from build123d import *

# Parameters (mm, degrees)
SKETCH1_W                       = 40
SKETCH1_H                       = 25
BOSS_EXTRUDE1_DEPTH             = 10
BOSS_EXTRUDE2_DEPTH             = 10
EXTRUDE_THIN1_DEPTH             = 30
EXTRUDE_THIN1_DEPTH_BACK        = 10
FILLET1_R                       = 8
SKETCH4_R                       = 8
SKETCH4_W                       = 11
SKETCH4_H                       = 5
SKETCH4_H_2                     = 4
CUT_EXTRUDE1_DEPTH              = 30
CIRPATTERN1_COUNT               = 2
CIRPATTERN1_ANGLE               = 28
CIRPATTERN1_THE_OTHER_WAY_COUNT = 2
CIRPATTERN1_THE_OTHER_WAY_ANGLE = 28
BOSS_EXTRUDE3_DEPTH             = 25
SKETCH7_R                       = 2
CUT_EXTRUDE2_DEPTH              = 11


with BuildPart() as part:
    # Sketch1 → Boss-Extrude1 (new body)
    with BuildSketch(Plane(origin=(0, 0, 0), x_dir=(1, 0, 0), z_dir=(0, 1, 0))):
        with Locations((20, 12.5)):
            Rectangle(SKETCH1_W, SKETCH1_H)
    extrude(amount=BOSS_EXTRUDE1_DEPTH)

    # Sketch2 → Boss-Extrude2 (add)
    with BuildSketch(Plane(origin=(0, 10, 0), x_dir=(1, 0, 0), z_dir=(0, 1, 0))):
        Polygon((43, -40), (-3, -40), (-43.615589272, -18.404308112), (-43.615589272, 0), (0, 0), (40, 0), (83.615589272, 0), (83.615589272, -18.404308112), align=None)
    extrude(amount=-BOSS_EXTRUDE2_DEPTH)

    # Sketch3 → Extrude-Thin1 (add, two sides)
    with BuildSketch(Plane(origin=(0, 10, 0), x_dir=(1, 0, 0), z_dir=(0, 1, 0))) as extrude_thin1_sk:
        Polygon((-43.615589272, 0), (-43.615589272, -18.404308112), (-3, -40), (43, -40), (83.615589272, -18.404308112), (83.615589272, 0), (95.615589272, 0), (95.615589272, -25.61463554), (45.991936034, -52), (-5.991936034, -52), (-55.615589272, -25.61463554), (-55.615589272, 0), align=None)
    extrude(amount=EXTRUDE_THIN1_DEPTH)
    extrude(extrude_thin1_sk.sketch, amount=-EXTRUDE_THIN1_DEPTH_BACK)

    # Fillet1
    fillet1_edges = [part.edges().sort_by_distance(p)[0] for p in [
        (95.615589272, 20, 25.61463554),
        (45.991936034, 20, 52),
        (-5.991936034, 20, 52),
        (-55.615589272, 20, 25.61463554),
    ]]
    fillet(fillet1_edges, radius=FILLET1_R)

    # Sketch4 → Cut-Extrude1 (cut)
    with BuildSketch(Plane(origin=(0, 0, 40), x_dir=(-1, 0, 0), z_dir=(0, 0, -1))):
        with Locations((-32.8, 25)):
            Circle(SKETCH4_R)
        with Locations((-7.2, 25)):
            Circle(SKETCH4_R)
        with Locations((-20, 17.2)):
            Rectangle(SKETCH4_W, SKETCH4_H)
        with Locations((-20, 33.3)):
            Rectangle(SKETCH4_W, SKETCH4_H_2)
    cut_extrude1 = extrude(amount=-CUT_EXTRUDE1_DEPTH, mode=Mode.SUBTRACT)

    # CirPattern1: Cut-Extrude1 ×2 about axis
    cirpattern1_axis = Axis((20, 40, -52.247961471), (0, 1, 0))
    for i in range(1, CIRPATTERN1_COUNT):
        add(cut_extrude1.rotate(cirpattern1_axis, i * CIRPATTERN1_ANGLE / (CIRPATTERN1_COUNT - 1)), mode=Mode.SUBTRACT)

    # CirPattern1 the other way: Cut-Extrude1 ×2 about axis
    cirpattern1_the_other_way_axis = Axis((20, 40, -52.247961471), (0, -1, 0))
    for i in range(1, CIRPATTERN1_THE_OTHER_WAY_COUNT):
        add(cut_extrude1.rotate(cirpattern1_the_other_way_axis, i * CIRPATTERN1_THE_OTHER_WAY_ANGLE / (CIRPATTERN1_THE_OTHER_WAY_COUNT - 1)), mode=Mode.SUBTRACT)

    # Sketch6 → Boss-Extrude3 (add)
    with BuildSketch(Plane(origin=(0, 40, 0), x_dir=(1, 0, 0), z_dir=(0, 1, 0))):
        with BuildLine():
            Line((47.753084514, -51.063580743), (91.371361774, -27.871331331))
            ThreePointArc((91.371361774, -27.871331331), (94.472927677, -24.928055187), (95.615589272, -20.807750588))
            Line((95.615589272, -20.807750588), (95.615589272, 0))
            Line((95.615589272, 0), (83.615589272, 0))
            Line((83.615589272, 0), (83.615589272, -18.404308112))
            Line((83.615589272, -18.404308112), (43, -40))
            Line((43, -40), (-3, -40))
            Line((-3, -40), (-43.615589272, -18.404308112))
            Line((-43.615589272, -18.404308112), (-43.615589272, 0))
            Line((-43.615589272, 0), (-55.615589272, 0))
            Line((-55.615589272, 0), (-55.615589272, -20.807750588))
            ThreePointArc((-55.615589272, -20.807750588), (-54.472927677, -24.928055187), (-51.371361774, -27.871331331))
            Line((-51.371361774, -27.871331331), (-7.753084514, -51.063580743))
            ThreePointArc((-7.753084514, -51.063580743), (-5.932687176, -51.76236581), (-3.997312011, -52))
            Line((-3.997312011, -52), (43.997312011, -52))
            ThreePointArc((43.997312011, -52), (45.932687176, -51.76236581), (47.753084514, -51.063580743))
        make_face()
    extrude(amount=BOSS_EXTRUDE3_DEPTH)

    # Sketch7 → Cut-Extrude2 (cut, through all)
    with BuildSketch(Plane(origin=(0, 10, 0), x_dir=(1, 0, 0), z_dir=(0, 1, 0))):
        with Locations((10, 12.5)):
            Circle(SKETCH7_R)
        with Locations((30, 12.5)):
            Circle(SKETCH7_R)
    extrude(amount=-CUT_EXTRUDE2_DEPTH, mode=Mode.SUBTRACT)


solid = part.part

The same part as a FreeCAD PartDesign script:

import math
import FreeCAD as App
import Part
import Sketcher
Q = App.Units.Quantity


def edges_at(feature, points):
    """Names of the edges that pass closest to the given points."""
    edges = feature.Shape.Edges
    near = lambda p: min(range(len(edges)), key=lambda i: edges[i].distToShape(Part.Vertex(*p))[0])
    return sorted({f"Edge{near(p) + 1}" for p in points})


def add_polygon(sketch, points):
    """Adds a closed chain of lines whose ends are joined by coincident constraints."""
    first, n = sketch.GeometryCount, len(points)
    for a, b in zip(points, points[1:] + points[:1]):
        sketch.addGeometry(Part.LineSegment(App.Vector(*a, 0), App.Vector(*b, 0)), False)
    for i in range(n):
        sketch.addConstraint(Sketcher.Constraint("Coincident", first + i, 2, first + (i + 1) % n, 1))

doc = App.newDocument("Part")
body = doc.addObject("PartDesign::Body", "Body")

# Sketch on XZ plane
sketch1 = body.newObject("Sketcher::SketchObject", "Sketch")
sketch1.AttachmentSupport = (doc.getObject("XZ_Plane"), [""])
sketch1.MapMode = "FlatFace"
add_polygon(sketch1, [(0, -25), (0, 0), (40, 0), (40, -25)])  # lines 0-3
sketch1.addConstraint([
    Sketcher.Constraint("Vertical", 0),
    Sketcher.Constraint("Horizontal", 1),
    Sketcher.Constraint("Vertical", 2),
    Sketcher.Constraint("Horizontal", 3),
    Sketcher.Constraint("Coincident", 0, 2, -1, 1),
    Sketcher.Constraint("DistanceX", 1, 1, 1, 2, 40.0),
    Sketcher.Constraint("DistanceY", 0, 1, 0, 2, 25.0),
])
pad1 = body.newObject("PartDesign::Pad", "Pad")
pad1.Profile = sketch1
pad1.Length = 10
pad1.Reversed = True

# Sketch on XZ plane
sketch2 = body.newObject("Sketcher::SketchObject", "Sketch001")
sketch2.AttachmentSupport = (doc.getObject("XZ_Plane"), [""])
sketch2.MapMode = "FlatFace"
sketch2.AttachmentOffset = App.Placement(App.Vector(0, 0, -10), App.Rotation())
add_polygon(sketch2, [(-3, 40), (43, 40), (84, 18), (84, 0), (-44, 0), (-44, 18)])  # lines 0-5
sketch2.addConstraint([
    Sketcher.Constraint("Horizontal", 0),
    Sketcher.Constraint("Vertical", 2),
    Sketcher.Constraint("Horizontal", 3),
    Sketcher.Constraint("Vertical", 4),
    Sketcher.Constraint("PointOnObject", 2, 2, -1),
    Sketcher.Constraint("Horizontal", 1, 2, 4, 2),
    Sketcher.Constraint("Equal", 1, 5),
    Sketcher.Constraint("DistanceX", 0, 1, 0, 2, 46.0),
    Sketcher.Constraint("Angle", 1, Q("-28 deg")),
    Sketcher.Constraint("Distance", 1, 46.0),
    Sketcher.Constraint("DistanceX", -1, 1, 0, 2, 43.0),
    Sketcher.Constraint("DistanceY", -1, 1, 0, 2, 40.0),
])
pad2 = body.newObject("PartDesign::Pad", "Pad001")
pad2.Profile = sketch2
pad2.Length = 10

# Sketch on XZ plane
sketch3 = body.newObject("Sketcher::SketchObject", "Sketch002")
sketch3.AttachmentSupport = (doc.getObject("XZ_Plane"), [""])
sketch3.MapMode = "FlatFace"
sketch3.AttachmentOffset = App.Placement(App.Vector(0, 0, -10), App.Rotation())
add_polygon(sketch3, [(-44, 18), (-44, 0), (-56, 0), (-56, 26), (-6, 52), (46, 52), (96, 26), (96, 0), (84, 0), (84, 18), (43, 40), (-3, 40)])  # lines 0-11
sketch3.addConstraint([
    Sketcher.Constraint("Vertical", 0),
    Sketcher.Constraint("Horizontal", 1),
    Sketcher.Constraint("Vertical", 2),
    Sketcher.Constraint("Horizontal", 4),
    Sketcher.Constraint("Vertical", 6),
    Sketcher.Constraint("Horizontal", 7),
    Sketcher.Constraint("Vertical", 8),
    Sketcher.Constraint("Horizontal", 10),
    Sketcher.Constraint("PointOnObject", 0, 2, -1),
    Sketcher.Constraint("PointOnObject", 6, 2, -1),
    Sketcher.Constraint("Parallel", 5, 9),
    Sketcher.Constraint("Parallel", 3, 11),
    Sketcher.Constraint("Horizontal", 2, 2, 5, 2),
    Sketcher.Constraint("Horizontal", 8, 2, 11, 2),
    Sketcher.Constraint("Equal", 1, 7),
    Sketcher.Constraint("Equal", 3, 5),
    Sketcher.Constraint("DistanceX", 1, 2, 1, 1, 12.0),
    Sketcher.Constraint("DistanceX", 10, 2, 10, 1, 46.0),
    Sketcher.Constraint("Angle", 3, Q("28 deg")),
    Sketcher.Constraint("Distance", 9, 46.0),
    Sketcher.Constraint("DistanceY", -1, 1, 3, 2, 52.0),
    Sketcher.Constraint("DistanceX", -1, 1, 9, 2, 43.0),
    Sketcher.Constraint("DistanceY", -1, 1, 9, 2, 40.0),
    Sketcher.Constraint("DistanceX", 4, 1, 4, 2, 51.983872),
])
pad3 = body.newObject("PartDesign::Pad", "Pad002")
pad3.Profile = sketch3
pad3.Type = "TwoLengths"
pad3.Length = 30
pad3.Length2 = 10
pad3.Reversed = True
doc.recompute()

fillet = body.newObject("PartDesign::Fillet", "Fillet")
fillet.Base = (pad3, edges_at(pad3, [
    (95.616, 20, 25.615),
    (45.992, 20, 52),
    (-5.992, 20, 52),
    (-55.616, 20, 25.615),
]))
fillet.Radius = 8

# Sketch on XY plane
sketch4 = body.newObject("Sketcher::SketchObject", "Sketch003")
sketch4.AttachmentSupport = (doc.getObject("XY_Plane"), [""])
sketch4.MapMode = "FlatFace"
sketch4.AttachmentOffset = App.Placement(App.Vector(0, 0, 40), App.Rotation())
sketch4.addGeometry(Part.Circle(App.Vector(32.8, 25, 0), App.Vector(0, 0, 1), 8), False)  # 0
sketch4.addGeometry(Part.Circle(App.Vector(7.2, 25, 0), App.Vector(0, 0, 1), 8), False)  # 1
add_polygon(sketch4, [(25.5, 19.7), (25.5, 14.7), (14.5, 14.7), (14.5, 19.7)])  # lines 2-5
add_polygon(sketch4, [(25.5, 35.3), (25.5, 31.3), (14.5, 31.3), (14.5, 35.3)])  # lines 6-9
sketch4.addConstraint([
    Sketcher.Constraint("Vertical", 2),
    Sketcher.Constraint("Horizontal", 3),
    Sketcher.Constraint("Vertical", 4),
    Sketcher.Constraint("Horizontal", 5),
    Sketcher.Constraint("Vertical", 6),
    Sketcher.Constraint("Horizontal", 7),
    Sketcher.Constraint("Vertical", 8),
    Sketcher.Constraint("Horizontal", 9),
    Sketcher.Constraint("Equal", 0, 1),
    Sketcher.Constraint("Horizontal", 0, 3, 1, 3),
    Sketcher.Constraint("Vertical", 5, 2, 6, 2),
    Sketcher.Constraint("Vertical", 4, 2, 7, 2),
    Sketcher.Constraint("Diameter", 0, 16.0),
    Sketcher.Constraint("DistanceX", 3, 2, 3, 1, 11.0),
    Sketcher.Constraint("DistanceY", 2, 2, 2, 1, 5.0),
    Sketcher.Constraint("DistanceY", 6, 2, 6, 1, 4.0),
    Sketcher.Constraint("DistanceY", -1, 1, 0, 3, 25.0),
    Sketcher.Constraint("DistanceX", -1, 1, 0, 3, 32.8),
    Sketcher.Constraint("DistanceX", -1, 1, 1, 3, 7.2),
    Sketcher.Constraint("DistanceX", -1, 1, 2, 2, 25.5),
    Sketcher.Constraint("DistanceY", -1, 1, 2, 2, 14.7),
    Sketcher.Constraint("DistanceY", -1, 1, 6, 2, 31.3),
])
pocket1 = body.newObject("PartDesign::Pocket", "Pocket")
pocket1.Profile = sketch4
pocket1.Length = 30
pocket1.Reversed = True
doc.recompute()

datumline = body.newObject("PartDesign::Line", "DatumLine")
datumline.Placement = App.Placement(App.Vector(20, 0, -52.247961), App.Rotation(App.Vector(0, 0, 1), App.Vector(0, 1, 0)))
polarpattern = body.newObject("PartDesign::PolarPattern", "PolarPattern")
polarpattern.Originals = [pocket1]
polarpattern.Axis = (datumline, [""])
polarpattern.Angle = 28
polarpattern.Occurrences = 2
body.Tip = polarpattern
doc.recompute()

datumline2 = body.newObject("PartDesign::Line", "DatumLine001")
datumline2.Placement = App.Placement(App.Vector(20, 0, -52.247961), App.Rotation(App.Vector(0, 0, 1), App.Vector(0, -1, 0)))
polarpattern2 = body.newObject("PartDesign::PolarPattern", "PolarPattern001")
polarpattern2.Originals = [pocket1]
polarpattern2.Axis = (datumline2, [""])
polarpattern2.Angle = 28
polarpattern2.Occurrences = 2
body.Tip = polarpattern2

# Sketch on XZ plane
sketch5 = body.newObject("Sketcher::SketchObject", "Sketch004")
sketch5.AttachmentSupport = (doc.getObject("XZ_Plane"), [""])
sketch5.MapMode = "FlatFace"
sketch5.AttachmentOffset = App.Placement(App.Vector(0, 0, -40), App.Rotation())
sketch5.addGeometry([
    Part.LineSegment(App.Vector(47.8, 51.1, 0), App.Vector(91.4, 27.9, 0)),  # 0
    Part.ArcOfCircle(Part.Circle(App.Vector(87.6, 20.8, 0), App.Vector(0, 0, 1), 8), math.radians(0), math.radians(62)),  # 1
    Part.LineSegment(App.Vector(95.6, 20.8, 0), App.Vector(95.6, 0, 0)),  # 2
    Part.LineSegment(App.Vector(95.6, 0, 0), App.Vector(83.6, 0, 0)),  # 3
    Part.LineSegment(App.Vector(83.6, 0, 0), App.Vector(83.6, 18.4, 0)),  # 4
    Part.LineSegment(App.Vector(83.6, 18.4, 0), App.Vector(43, 40, 0)),  # 5
    Part.LineSegment(App.Vector(43, 40, 0), App.Vector(-3, 40, 0)),  # 6
    Part.LineSegment(App.Vector(-3, 40, 0), App.Vector(-43.6, 18.4, 0)),  # 7
    Part.LineSegment(App.Vector(-43.6, 18.4, 0), App.Vector(-43.6, 0, 0)),  # 8
    Part.LineSegment(App.Vector(-43.6, 0, 0), App.Vector(-55.6, 0, 0)),  # 9
    Part.LineSegment(App.Vector(-55.6, 0, 0), App.Vector(-55.6, 20.8, 0)),  # 10
    Part.ArcOfCircle(Part.Circle(App.Vector(-47.6, 20.8, 0), App.Vector(0, 0, 1), 8), math.radians(118), math.radians(180)),  # 11
    Part.LineSegment(App.Vector(-51.4, 27.9, 0), App.Vector(-7.8, 51.1, 0)),  # 12
    Part.ArcOfCircle(Part.Circle(App.Vector(-4, 44, 0), App.Vector(0, 0, 1), 8), math.radians(90), math.radians(118)),  # 13
    Part.LineSegment(App.Vector(-4, 52, 0), App.Vector(44, 52, 0)),  # 14
    Part.ArcOfCircle(Part.Circle(App.Vector(44, 44, 0), App.Vector(0, 0, 1), 8), math.radians(62), math.radians(90)),  # 15
], False)
sketch5.addConstraint([
    Sketcher.Constraint("Tangent", 0, 2, 1, 2),
    Sketcher.Constraint("Tangent", 1, 1, 2, 1),
    Sketcher.Constraint("Coincident", 2, 2, 3, 1),
    Sketcher.Constraint("Coincident", 3, 2, 4, 1),
    Sketcher.Constraint("Coincident", 4, 2, 5, 1),
    Sketcher.Constraint("Coincident", 5, 2, 6, 1),
    Sketcher.Constraint("Coincident", 6, 2, 7, 1),
    Sketcher.Constraint("Coincident", 7, 2, 8, 1),
    Sketcher.Constraint("Coincident", 8, 2, 9, 1),
    Sketcher.Constraint("Coincident", 9, 2, 10, 1),
    Sketcher.Constraint("Tangent", 10, 2, 11, 2),
    Sketcher.Constraint("Tangent", 11, 1, 12, 1),
    Sketcher.Constraint("Tangent", 12, 2, 13, 2),
    Sketcher.Constraint("Tangent", 13, 1, 14, 1),
    Sketcher.Constraint("Tangent", 14, 2, 15, 2),
    Sketcher.Constraint("Tangent", 15, 1, 0, 1),
    Sketcher.Constraint("Vertical", 2),
    Sketcher.Constraint("Horizontal", 3),
    Sketcher.Constraint("Vertical", 4),
    Sketcher.Constraint("Horizontal", 6),
    Sketcher.Constraint("Vertical", 8),
    Sketcher.Constraint("Horizontal", 9),
    Sketcher.Constraint("Vertical", 10),
    Sketcher.Constraint("Horizontal", 14),
    Sketcher.Constraint("Equal", 1, 11),
    Sketcher.Constraint("Equal", 11, 13),
    Sketcher.Constraint("Equal", 13, 15),
    Sketcher.Constraint("PointOnObject", 2, 2, -1),
    Sketcher.Constraint("PointOnObject", 8, 2, -1),
    Sketcher.Constraint("Parallel", 0, 5),
    Sketcher.Constraint("Parallel", 7, 12),
    Sketcher.Constraint("Horizontal", 1, 3, 11, 3),
    Sketcher.Constraint("Horizontal", 4, 2, 7, 2),
    Sketcher.Constraint("Horizontal", 0, 2, 11, 1),
    Sketcher.Constraint("Equal", 3, 9),
    Sketcher.Constraint("Radius", 1, 8.0),
    Sketcher.Constraint("DistanceX", 3, 2, 3, 1, 12.0),
    Sketcher.Constraint("DistanceX", 6, 2, 6, 1, 46.0),
    Sketcher.Constraint("Angle", 0, Q("-28 deg")),
    Sketcher.Constraint("Distance", 5, 46.0),
    Sketcher.Constraint("DistanceY", -1, 1, 13, 3, 44.0),
    Sketcher.Constraint("DistanceX", -1, 1, 5, 2, 43.0),
    Sketcher.Constraint("DistanceY", -1, 1, 5, 2, 40.0),
    Sketcher.Constraint("DistanceY", 2, 2, 2, 1, 20.807751),
])
pad4 = body.newObject("PartDesign::Pad", "Pad003")
pad4.Profile = sketch5
pad4.Length = 25
pad4.Reversed = True

# Sketch on XZ plane
sketch6 = body.newObject("Sketcher::SketchObject", "Sketch005")
sketch6.AttachmentSupport = (doc.getObject("XZ_Plane"), [""])
sketch6.MapMode = "FlatFace"
sketch6.AttachmentOffset = App.Placement(App.Vector(0, 0, -10), App.Rotation())
sketch6.addGeometry([
    Part.Circle(App.Vector(10, -12.5, 0), App.Vector(0, 0, 1), 2),
    Part.Circle(App.Vector(30, -12.5, 0), App.Vector(0, 0, 1), 2),
], False)
sketch6.addConstraint([
    Sketcher.Constraint("Equal", 0, 1),
    Sketcher.Constraint("Horizontal", 0, 3, 1, 3),
    Sketcher.Constraint("Diameter", 0, 4.0),
    Sketcher.Constraint("DistanceX", -1, 1, 0, 3, 10.0),
    Sketcher.Constraint("DistanceX", -1, 1, 1, 3, 30.0),
    Sketcher.Constraint("DistanceY", 0, 3, -1, 1, 12.5),
])
pocket2 = body.newObject("PartDesign::Pocket", "Pocket001")
pocket2.Profile = sketch6
pocket2.Type = "ThroughAll"
pocket2.Reversed = True

doc.recompute()
